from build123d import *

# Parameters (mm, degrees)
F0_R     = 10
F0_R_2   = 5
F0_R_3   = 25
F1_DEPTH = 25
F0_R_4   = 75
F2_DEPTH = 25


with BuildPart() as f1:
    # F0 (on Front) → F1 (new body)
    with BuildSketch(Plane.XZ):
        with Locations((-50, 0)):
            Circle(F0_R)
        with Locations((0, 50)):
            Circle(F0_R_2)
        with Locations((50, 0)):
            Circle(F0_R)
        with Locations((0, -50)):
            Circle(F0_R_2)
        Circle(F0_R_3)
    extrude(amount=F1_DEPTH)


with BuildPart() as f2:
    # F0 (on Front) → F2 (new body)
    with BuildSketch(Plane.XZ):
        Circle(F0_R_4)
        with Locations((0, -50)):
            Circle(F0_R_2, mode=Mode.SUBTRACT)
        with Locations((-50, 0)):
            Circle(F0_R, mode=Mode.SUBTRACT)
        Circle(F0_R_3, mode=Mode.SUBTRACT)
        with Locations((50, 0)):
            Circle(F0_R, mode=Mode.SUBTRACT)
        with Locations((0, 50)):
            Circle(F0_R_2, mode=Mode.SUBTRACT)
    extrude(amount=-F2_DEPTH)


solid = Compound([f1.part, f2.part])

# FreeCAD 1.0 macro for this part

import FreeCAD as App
import Part
import Sketcher
Q = App.Units.Quantity

doc = App.newDocument("Part")
body = doc.addObject("PartDesign::Body", "Body")
body.AllowCompound = True

# Sketch on XZ plane
sketch1 = body.newObject("Sketcher::SketchObject", "Sketch")
sketch1.AttachmentSupport = (doc.getObject("XZ_Plane"), [""])
sketch1.MapMode = "FlatFace"
sketch1.addGeometry(Part.Circle(App.Vector(-50, 0, 0), App.Vector(0, 0, 1), 10), False)
sketch1.addGeometry(Part.Circle(App.Vector(0, 50, 0), App.Vector(0, 0, 1), 5), False)
sketch1.addGeometry(Part.Circle(App.Vector(50, 0, 0), App.Vector(0, 0, 1), 10), False)
sketch1.addGeometry(Part.Circle(App.Vector(0, -50, 0), App.Vector(0, 0, 1), 5), False)
sketch1.addGeometry(Part.Circle(App.Vector(0, 0, 0), App.Vector(0, 0, 1), 25), False)
sketch1.addConstraint(Sketcher.Constraint("Coincident", 4, 3, -1, 1))
sketch1.addConstraint(Sketcher.Constraint("Equal", 0, 2))
sketch1.addConstraint(Sketcher.Constraint("Equal", 1, 3))
sketch1.addConstraint(Sketcher.Constraint("Symmetric", 0, 3, 2, 3, -1, 1))
sketch1.addConstraint(Sketcher.Constraint("Symmetric", 1, 3, 3, 3, -1, 1))
sketch1.addConstraint(Sketcher.Constraint("PointOnObject", 0, 3, -1))
sketch1.addConstraint(Sketcher.Constraint("PointOnObject", 1, 3, -2))
sketch1.addConstraint(Sketcher.Constraint("Diameter", 0, Q("20 mm")))
sketch1.addConstraint(Sketcher.Constraint("Diameter", 1, Q("10 mm")))
sketch1.addConstraint(Sketcher.Constraint("Diameter", 4, Q("50 mm")))
sketch1.addConstraint(Sketcher.Constraint("DistanceX", 0, 3, -1, 1, Q("50 mm")))
sketch1.addConstraint(Sketcher.Constraint("DistanceY", -1, 1, 1, 3, Q("50 mm")))
pad1 = body.newObject("PartDesign::Pad", "Pad")
pad1.Profile = sketch1
pad1.Length = 25
body2 = doc.addObject("PartDesign::Body", "Body001")

# Sketch on XZ plane
sketch2 = body2.newObject("Sketcher::SketchObject", "Sketch001")
sketch2.AttachmentSupport = (doc.getObject("XZ_Plane001"), [""])
sketch2.MapMode = "FlatFace"
sketch2.addGeometry(Part.Circle(App.Vector(0, 0, 0), App.Vector(0, 0, 1), 75), False)
sketch2.addGeometry(Part.Circle(App.Vector(0, -50, 0), App.Vector(0, 0, 1), 5), False)
sketch2.addGeometry(Part.Circle(App.Vector(-50, 0, 0), App.Vector(0, 0, 1), 10), False)
sketch2.addGeometry(Part.Circle(App.Vector(0, 0, 0), App.Vector(0, 0, 1), 25), False)
sketch2.addGeometry(Part.Circle(App.Vector(50, 0, 0), App.Vector(0, 0, 1), 10), False)
sketch2.addGeometry(Part.Circle(App.Vector(0, 50, 0), App.Vector(0, 0, 1), 5), False)
sketch2.addConstraint(Sketcher.Constraint("Coincident", 0, 3, -1, 1))
sketch2.addConstraint(Sketcher.Constraint("Coincident", 3, 3, -1, 1))
sketch2.addConstraint(Sketcher.Constraint("Equal", 2, 4))
sketch2.addConstraint(Sketcher.Constraint("Equal", 1, 5))
sketch2.addConstraint(Sketcher.Constraint("Symmetric", 2, 3, 4, 3, -1, 1))
sketch2.addConstraint(Sketcher.Constraint("Symmetric", 1, 3, 5, 3, -1, 1))
sketch2.addConstraint(Sketcher.Constraint("PointOnObject", 1, 3, -2))
sketch2.addConstraint(Sketcher.Constraint("PointOnObject", 2, 3, -1))
sketch2.addConstraint(Sketcher.Constraint("Diameter", 0, Q("150 mm")))
sketch2.addConstraint(Sketcher.Constraint("Diameter", 1, Q("10 mm")))
sketch2.addConstraint(Sketcher.Constraint("Diameter", 2, Q("20 mm")))
sketch2.addConstraint(Sketcher.Constraint("Diameter", 3, Q("50 mm")))
sketch2.addConstraint(Sketcher.Constraint("DistanceY", 1, 3, -1, 1, Q("50 mm")))
sketch2.addConstraint(Sketcher.Constraint("DistanceX", 2, 3, -1, 1, Q("50 mm")))
pad2 = body2.newObject("PartDesign::Pad", "Pad001")
pad2.Profile = sketch2
pad2.Length = 25
pad2.Reversed = True

doc.recompute()
